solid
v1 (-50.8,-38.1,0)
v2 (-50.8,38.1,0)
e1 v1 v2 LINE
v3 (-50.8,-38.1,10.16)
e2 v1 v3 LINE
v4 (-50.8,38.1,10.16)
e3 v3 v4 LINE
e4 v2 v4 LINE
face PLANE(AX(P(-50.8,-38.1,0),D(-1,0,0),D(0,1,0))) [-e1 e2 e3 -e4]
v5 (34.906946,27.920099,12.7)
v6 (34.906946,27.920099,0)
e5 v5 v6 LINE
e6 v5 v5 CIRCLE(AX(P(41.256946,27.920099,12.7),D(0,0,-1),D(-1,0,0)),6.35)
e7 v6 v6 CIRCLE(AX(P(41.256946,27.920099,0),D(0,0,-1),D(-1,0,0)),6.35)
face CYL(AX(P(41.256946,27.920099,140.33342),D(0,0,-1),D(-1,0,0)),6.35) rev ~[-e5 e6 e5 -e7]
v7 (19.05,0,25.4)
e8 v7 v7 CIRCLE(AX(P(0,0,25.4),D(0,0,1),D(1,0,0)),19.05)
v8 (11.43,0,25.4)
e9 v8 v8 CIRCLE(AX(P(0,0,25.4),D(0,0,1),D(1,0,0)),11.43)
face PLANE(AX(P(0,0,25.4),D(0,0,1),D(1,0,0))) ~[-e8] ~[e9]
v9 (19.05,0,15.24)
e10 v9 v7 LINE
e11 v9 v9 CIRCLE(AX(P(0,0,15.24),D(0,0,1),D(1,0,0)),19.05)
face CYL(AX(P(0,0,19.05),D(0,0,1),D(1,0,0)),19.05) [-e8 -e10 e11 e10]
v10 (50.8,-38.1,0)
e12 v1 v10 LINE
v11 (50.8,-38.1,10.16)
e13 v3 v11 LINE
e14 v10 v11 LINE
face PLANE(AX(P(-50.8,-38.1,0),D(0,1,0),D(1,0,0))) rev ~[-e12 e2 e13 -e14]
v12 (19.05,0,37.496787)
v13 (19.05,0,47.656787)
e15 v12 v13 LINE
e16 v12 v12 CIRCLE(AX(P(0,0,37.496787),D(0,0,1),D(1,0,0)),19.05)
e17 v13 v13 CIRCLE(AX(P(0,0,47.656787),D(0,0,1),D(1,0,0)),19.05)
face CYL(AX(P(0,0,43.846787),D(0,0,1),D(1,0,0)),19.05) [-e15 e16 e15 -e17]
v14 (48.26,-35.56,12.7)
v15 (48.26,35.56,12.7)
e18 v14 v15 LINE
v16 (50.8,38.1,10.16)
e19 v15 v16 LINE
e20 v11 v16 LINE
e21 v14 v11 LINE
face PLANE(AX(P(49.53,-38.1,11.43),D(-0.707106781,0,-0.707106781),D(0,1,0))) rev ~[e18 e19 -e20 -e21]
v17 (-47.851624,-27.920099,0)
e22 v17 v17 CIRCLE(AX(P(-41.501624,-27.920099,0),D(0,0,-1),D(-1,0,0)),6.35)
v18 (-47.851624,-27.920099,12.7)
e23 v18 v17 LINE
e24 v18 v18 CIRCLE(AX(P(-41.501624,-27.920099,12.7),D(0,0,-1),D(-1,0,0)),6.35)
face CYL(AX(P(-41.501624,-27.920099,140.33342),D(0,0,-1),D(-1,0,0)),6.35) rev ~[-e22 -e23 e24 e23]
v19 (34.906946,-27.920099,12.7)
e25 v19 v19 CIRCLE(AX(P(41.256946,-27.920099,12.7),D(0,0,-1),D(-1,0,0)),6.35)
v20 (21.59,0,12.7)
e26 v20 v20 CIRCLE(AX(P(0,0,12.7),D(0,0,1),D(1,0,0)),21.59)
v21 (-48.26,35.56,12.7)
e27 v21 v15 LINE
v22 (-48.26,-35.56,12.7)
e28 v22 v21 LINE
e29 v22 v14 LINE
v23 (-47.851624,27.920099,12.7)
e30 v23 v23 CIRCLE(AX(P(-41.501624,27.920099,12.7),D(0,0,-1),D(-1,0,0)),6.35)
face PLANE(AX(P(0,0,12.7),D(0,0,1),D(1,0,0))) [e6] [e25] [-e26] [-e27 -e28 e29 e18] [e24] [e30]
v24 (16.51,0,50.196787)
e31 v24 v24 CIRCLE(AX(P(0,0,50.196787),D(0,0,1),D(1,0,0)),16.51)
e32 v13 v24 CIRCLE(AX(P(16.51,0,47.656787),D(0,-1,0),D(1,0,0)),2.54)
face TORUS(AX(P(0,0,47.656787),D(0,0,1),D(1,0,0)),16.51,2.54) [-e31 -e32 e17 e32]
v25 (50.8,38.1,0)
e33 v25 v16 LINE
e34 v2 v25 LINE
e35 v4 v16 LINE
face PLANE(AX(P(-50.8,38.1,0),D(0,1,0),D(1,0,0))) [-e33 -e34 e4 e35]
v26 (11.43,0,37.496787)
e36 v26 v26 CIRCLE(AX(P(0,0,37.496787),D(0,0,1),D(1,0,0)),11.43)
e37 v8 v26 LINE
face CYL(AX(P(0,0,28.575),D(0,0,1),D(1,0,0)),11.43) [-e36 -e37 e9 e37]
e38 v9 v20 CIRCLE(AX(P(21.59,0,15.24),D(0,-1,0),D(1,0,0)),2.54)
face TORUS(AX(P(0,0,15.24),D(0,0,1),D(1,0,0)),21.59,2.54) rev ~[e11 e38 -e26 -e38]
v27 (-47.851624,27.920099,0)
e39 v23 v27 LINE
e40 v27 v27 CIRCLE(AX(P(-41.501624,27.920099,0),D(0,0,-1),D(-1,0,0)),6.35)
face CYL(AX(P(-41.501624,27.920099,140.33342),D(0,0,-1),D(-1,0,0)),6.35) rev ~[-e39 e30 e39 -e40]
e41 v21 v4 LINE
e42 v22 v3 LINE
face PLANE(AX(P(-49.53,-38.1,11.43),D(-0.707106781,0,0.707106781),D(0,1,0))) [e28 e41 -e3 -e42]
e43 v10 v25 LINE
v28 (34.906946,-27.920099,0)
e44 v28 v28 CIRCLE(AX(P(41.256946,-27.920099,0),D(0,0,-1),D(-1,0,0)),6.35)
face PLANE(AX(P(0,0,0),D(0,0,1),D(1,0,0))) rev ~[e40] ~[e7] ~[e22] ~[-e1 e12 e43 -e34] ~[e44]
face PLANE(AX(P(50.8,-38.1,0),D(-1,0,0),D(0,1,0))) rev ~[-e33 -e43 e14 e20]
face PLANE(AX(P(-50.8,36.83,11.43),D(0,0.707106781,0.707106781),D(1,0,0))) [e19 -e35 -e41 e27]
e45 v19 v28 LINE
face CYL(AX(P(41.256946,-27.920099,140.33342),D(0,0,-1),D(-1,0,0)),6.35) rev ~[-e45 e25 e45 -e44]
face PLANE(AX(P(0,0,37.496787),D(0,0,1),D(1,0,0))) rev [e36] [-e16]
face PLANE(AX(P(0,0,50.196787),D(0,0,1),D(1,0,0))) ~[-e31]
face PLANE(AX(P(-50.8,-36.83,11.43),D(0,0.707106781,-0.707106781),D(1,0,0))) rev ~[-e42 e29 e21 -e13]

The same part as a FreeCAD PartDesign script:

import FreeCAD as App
import Part
import Sketcher

V = App.Vector
Q = App.Units.Quantity


def edges_at(feature, points):
    """Names of the edges that pass closest to the given points."""
    edges = feature.Shape.Edges
    near = lambda p: min(range(len(edges)), key=lambda i: edges[i].distToShape(Part.Vertex(*p))[0])
    return sorted({f"Edge{near(p) + 1}" for p in points})


def add_polygon(sketch, points):
    """Adds a closed chain of lines whose ends are joined by coincident constraints."""
    first, n = sketch.GeometryCount, len(points)
    for a, b in zip(points, points[1:] + points[:1]):
        sketch.addGeometry(Part.LineSegment(App.Vector(*a, 0), App.Vector(*b, 0)), False)
    for i in range(n):
        sketch.addConstraint(Sketcher.Constraint("Coincident", first + i, 2, first + (i + 1) % n, 1))

doc = App.newDocument("Part")
body = doc.addObject("PartDesign::Body", "Body")

# Sketch on XY plane
sketch1 = body.newObject("Sketcher::SketchObject", "Sketch")
sketch1.AttachmentSupport = (doc.getObject("XY_Plane"), [""])
sketch1.MapMode = "FlatFace"
add_polygon(sketch1, [(-51, 38), (-51, -38), (51, -38), (51, 38)])  # lines 0-3
sketch1.addConstraint(Sketcher.Constraint("Vertical", 0))
sketch1.addConstraint(Sketcher.Constraint("Horizontal", 1))
sketch1.addConstraint(Sketcher.Constraint("Vertical", 2))
sketch1.addConstraint(Sketcher.Constraint("Horizontal", 3))
sketch1.addConstraint(Sketcher.Constraint("Symmetric", 0, 2, 2, 2, -1, 1))
sketch1.addConstraint(Sketcher.Constraint("DistanceX", 1, 1, 1, 2, Q("4 in")))
sketch1.addConstraint(Sketcher.Constraint("DistanceY", 0, 2, 0, 1, Q("3 in")))
pad1 = body.newObject("PartDesign::Pad", "Pad")
pad1.Profile = sketch1
pad1.Length = Q("0.5 in")

# Sketch on XY plane
sketch2 = body.newObject("Sketcher::SketchObject", "Sketch001")
sketch2.AttachmentSupport = (doc.getObject("XY_Plane"), [""])
sketch2.MapMode = "FlatFace"
sketch2.AttachmentOffset = App.Placement(V(0, 0, 0.5 * 25.4), App.Rotation())
sketch2.addGeometry(Part.Circle(V(-42, 28, 0), V(0, 0, 1), 6), False)
sketch2.addGeometry(Part.Circle(V(41, 28, 0), V(0, 0, 1), 6), False)
sketch2.addGeometry(Part.Circle(V(41, -28, 0), V(0, 0, 1), 6), False)
sketch2.addGeometry(Part.Circle(V(-42, -28, 0), V(0, 0, 1), 6), False)
sketch2.addConstraint(Sketcher.Constraint("Equal", 0, 1))
sketch2.addConstraint(Sketcher.Constraint("Equal", 1, 2))
sketch2.addConstraint(Sketcher.Constraint("Equal", 2, 3))
sketch2.addConstraint(Sketcher.Constraint("Symmetric", 1, 3, 2, 3, -1))
sketch2.addConstraint(Sketcher.Constraint("Symmetric", 0, 3, 3, 3, -1))
sketch2.addConstraint(Sketcher.Constraint("Horizontal", 0, 3, 1, 3))
sketch2.addConstraint(Sketcher.Constraint("Diameter", 0, Q("0.5 in")))
sketch2.addConstraint(Sketcher.Constraint("DistanceY", -1, 1, 0, 3, 27.920099))
sketch2.addConstraint(Sketcher.Constraint("DistanceX", 0, 3, 1, 3, 82.75857))
sketch2.addConstraint(Sketcher.Constraint("DistanceX", 0, 3, -1, 1, 41.501624))
doc.recompute()
hole = body.newObject("PartDesign::Hole", "Hole")
hole.Profile = sketch2
hole.ThreadType = "None"
hole.Diameter = Q("0.5 in")
hole.DepthType = "ThroughAll"

# Sketch on XZ plane
sketch3 = body.newObject("Sketcher::SketchObject", "Sketch002")
sketch3.AttachmentSupport = (doc.getObject("XZ_Plane"), [""])
sketch3.MapMode = "FlatFace"
add_polygon(sketch3, [(0, 44), (0, 13), (11, 13), (11, 44)])  # lines 0-3
sketch3.addConstraint(Sketcher.Constraint("Vertical", 0))
sketch3.addConstraint(Sketcher.Constraint("Horizontal", 1))
sketch3.addConstraint(Sketcher.Constraint("Vertical", 2))
sketch3.addConstraint(Sketcher.Constraint("Horizontal", 3))
sketch3.addConstraint(Sketcher.Constraint("PointOnObject", 0, 2, -2))
sketch3.addConstraint(Sketcher.Constraint("DistanceX", 1, 1, 1, 2, Q("0.45 in")))
sketch3.addConstraint(Sketcher.Constraint("DistanceY", 0, 2, 0, 1, Q("1.25 in")))
sketch3.addConstraint(Sketcher.Constraint("DistanceY", -1, 1, 0, 2, Q("0.5 in")))
revolution = body.newObject("PartDesign::Revolution", "Revolution")
revolution.Profile = sketch3
revolution.ReferenceAxis = (sketch3, ["V_Axis"])
revolution.Angle = 360

# Sketch on XZ plane
sketch4 = body.newObject("Sketcher::SketchObject", "Sketch003")
sketch4.AttachmentSupport = (doc.getObject("XZ_Plane"), [""])
sketch4.MapMode = "FlatFace"
add_polygon(sketch4, [(0, 25), (0, 13), (19, 13), (19, 25)])  # lines 0-3
sketch4.addConstraint(Sketcher.Constraint("Vertical", 0))
sketch4.addConstraint(Sketcher.Constraint("Horizontal", 1))
sketch4.addConstraint(Sketcher.Constraint("Vertical", 2))
sketch4.addConstraint(Sketcher.Constraint("Horizontal", 3))
sketch4.addConstraint(Sketcher.Constraint("PointOnObject", 0, 2, -2))
sketch4.addConstraint(Sketcher.Constraint("DistanceY", 0, 2, 0, 1, Q("0.5 in")))
sketch4.addConstraint(Sketcher.Constraint("DistanceY", -1, 1, 2, 2, Q("1 in")))
sketch4.addConstraint(Sketcher.Constraint("DistanceX", 1, 1, 1, 2, Q("0.75 in")))
revolution2 = body.newObject("PartDesign::Revolution", "Revolution001")
revolution2.Profile = sketch4
revolution2.ReferenceAxis = (sketch4, ["V_Axis"])
revolution2.Angle = 360

# Sketch on XZ plane
sketch5 = body.newObject("Sketcher::SketchObject", "Sketch004")
sketch5.AttachmentSupport = (doc.getObject("XZ_Plane"), [""])
sketch5.MapMode = "FlatFace"
add_polygon(sketch5, [(0, 50), (0, 37), (19, 37), (19, 50)])  # lines 0-3
sketch5.addConstraint(Sketcher.Constraint("Vertical", 0))
sketch5.addConstraint(Sketcher.Constraint("Horizontal", 1))
sketch5.addConstraint(Sketcher.Constraint("Vertical", 2))
sketch5.addConstraint(Sketcher.Constraint("Horizontal", 3))
sketch5.addConstraint(Sketcher.Constraint("PointOnObject", 0, 2, -2))
sketch5.addConstraint(Sketcher.Constraint("DistanceY", 0, 2, 0, 1, Q("0.5 in")))
sketch5.addConstraint(Sketcher.Constraint("DistanceX", 1, 1, 1, 2, Q("0.75 in")))
sketch5.addConstraint(Sketcher.Constraint("DistanceY", -1, 1, 0, 2, 37.496787))
revolution3 = body.newObject("PartDesign::Revolution", "Revolution002")
revolution3.Profile = sketch5
revolution3.ReferenceAxis = (sketch5, ["V_Axis"])
revolution3.Angle = 360
doc.recompute()

fillet = body.newObject("PartDesign::Fillet", "Fillet")
fillet.Base = (revolution3, edges_at(revolution3, [(-19.05, 0, 50.197), (-19.05, 0, 12.7)]))
fillet.Radius = Q("0.1 in")
doc.recompute()

chamfer = body.newObject("PartDesign::Chamfer", "Chamfer")
chamfer.Base = (fillet, edges_at(fillet, [
    (0, 38.1, 12.7),
    (50.8, 0, 12.7),
    (0, -38.1, 12.7),
    (-50.8, 0, 12.7),
]))
chamfer.Size = Q("0.1 in")

doc.recompute()
